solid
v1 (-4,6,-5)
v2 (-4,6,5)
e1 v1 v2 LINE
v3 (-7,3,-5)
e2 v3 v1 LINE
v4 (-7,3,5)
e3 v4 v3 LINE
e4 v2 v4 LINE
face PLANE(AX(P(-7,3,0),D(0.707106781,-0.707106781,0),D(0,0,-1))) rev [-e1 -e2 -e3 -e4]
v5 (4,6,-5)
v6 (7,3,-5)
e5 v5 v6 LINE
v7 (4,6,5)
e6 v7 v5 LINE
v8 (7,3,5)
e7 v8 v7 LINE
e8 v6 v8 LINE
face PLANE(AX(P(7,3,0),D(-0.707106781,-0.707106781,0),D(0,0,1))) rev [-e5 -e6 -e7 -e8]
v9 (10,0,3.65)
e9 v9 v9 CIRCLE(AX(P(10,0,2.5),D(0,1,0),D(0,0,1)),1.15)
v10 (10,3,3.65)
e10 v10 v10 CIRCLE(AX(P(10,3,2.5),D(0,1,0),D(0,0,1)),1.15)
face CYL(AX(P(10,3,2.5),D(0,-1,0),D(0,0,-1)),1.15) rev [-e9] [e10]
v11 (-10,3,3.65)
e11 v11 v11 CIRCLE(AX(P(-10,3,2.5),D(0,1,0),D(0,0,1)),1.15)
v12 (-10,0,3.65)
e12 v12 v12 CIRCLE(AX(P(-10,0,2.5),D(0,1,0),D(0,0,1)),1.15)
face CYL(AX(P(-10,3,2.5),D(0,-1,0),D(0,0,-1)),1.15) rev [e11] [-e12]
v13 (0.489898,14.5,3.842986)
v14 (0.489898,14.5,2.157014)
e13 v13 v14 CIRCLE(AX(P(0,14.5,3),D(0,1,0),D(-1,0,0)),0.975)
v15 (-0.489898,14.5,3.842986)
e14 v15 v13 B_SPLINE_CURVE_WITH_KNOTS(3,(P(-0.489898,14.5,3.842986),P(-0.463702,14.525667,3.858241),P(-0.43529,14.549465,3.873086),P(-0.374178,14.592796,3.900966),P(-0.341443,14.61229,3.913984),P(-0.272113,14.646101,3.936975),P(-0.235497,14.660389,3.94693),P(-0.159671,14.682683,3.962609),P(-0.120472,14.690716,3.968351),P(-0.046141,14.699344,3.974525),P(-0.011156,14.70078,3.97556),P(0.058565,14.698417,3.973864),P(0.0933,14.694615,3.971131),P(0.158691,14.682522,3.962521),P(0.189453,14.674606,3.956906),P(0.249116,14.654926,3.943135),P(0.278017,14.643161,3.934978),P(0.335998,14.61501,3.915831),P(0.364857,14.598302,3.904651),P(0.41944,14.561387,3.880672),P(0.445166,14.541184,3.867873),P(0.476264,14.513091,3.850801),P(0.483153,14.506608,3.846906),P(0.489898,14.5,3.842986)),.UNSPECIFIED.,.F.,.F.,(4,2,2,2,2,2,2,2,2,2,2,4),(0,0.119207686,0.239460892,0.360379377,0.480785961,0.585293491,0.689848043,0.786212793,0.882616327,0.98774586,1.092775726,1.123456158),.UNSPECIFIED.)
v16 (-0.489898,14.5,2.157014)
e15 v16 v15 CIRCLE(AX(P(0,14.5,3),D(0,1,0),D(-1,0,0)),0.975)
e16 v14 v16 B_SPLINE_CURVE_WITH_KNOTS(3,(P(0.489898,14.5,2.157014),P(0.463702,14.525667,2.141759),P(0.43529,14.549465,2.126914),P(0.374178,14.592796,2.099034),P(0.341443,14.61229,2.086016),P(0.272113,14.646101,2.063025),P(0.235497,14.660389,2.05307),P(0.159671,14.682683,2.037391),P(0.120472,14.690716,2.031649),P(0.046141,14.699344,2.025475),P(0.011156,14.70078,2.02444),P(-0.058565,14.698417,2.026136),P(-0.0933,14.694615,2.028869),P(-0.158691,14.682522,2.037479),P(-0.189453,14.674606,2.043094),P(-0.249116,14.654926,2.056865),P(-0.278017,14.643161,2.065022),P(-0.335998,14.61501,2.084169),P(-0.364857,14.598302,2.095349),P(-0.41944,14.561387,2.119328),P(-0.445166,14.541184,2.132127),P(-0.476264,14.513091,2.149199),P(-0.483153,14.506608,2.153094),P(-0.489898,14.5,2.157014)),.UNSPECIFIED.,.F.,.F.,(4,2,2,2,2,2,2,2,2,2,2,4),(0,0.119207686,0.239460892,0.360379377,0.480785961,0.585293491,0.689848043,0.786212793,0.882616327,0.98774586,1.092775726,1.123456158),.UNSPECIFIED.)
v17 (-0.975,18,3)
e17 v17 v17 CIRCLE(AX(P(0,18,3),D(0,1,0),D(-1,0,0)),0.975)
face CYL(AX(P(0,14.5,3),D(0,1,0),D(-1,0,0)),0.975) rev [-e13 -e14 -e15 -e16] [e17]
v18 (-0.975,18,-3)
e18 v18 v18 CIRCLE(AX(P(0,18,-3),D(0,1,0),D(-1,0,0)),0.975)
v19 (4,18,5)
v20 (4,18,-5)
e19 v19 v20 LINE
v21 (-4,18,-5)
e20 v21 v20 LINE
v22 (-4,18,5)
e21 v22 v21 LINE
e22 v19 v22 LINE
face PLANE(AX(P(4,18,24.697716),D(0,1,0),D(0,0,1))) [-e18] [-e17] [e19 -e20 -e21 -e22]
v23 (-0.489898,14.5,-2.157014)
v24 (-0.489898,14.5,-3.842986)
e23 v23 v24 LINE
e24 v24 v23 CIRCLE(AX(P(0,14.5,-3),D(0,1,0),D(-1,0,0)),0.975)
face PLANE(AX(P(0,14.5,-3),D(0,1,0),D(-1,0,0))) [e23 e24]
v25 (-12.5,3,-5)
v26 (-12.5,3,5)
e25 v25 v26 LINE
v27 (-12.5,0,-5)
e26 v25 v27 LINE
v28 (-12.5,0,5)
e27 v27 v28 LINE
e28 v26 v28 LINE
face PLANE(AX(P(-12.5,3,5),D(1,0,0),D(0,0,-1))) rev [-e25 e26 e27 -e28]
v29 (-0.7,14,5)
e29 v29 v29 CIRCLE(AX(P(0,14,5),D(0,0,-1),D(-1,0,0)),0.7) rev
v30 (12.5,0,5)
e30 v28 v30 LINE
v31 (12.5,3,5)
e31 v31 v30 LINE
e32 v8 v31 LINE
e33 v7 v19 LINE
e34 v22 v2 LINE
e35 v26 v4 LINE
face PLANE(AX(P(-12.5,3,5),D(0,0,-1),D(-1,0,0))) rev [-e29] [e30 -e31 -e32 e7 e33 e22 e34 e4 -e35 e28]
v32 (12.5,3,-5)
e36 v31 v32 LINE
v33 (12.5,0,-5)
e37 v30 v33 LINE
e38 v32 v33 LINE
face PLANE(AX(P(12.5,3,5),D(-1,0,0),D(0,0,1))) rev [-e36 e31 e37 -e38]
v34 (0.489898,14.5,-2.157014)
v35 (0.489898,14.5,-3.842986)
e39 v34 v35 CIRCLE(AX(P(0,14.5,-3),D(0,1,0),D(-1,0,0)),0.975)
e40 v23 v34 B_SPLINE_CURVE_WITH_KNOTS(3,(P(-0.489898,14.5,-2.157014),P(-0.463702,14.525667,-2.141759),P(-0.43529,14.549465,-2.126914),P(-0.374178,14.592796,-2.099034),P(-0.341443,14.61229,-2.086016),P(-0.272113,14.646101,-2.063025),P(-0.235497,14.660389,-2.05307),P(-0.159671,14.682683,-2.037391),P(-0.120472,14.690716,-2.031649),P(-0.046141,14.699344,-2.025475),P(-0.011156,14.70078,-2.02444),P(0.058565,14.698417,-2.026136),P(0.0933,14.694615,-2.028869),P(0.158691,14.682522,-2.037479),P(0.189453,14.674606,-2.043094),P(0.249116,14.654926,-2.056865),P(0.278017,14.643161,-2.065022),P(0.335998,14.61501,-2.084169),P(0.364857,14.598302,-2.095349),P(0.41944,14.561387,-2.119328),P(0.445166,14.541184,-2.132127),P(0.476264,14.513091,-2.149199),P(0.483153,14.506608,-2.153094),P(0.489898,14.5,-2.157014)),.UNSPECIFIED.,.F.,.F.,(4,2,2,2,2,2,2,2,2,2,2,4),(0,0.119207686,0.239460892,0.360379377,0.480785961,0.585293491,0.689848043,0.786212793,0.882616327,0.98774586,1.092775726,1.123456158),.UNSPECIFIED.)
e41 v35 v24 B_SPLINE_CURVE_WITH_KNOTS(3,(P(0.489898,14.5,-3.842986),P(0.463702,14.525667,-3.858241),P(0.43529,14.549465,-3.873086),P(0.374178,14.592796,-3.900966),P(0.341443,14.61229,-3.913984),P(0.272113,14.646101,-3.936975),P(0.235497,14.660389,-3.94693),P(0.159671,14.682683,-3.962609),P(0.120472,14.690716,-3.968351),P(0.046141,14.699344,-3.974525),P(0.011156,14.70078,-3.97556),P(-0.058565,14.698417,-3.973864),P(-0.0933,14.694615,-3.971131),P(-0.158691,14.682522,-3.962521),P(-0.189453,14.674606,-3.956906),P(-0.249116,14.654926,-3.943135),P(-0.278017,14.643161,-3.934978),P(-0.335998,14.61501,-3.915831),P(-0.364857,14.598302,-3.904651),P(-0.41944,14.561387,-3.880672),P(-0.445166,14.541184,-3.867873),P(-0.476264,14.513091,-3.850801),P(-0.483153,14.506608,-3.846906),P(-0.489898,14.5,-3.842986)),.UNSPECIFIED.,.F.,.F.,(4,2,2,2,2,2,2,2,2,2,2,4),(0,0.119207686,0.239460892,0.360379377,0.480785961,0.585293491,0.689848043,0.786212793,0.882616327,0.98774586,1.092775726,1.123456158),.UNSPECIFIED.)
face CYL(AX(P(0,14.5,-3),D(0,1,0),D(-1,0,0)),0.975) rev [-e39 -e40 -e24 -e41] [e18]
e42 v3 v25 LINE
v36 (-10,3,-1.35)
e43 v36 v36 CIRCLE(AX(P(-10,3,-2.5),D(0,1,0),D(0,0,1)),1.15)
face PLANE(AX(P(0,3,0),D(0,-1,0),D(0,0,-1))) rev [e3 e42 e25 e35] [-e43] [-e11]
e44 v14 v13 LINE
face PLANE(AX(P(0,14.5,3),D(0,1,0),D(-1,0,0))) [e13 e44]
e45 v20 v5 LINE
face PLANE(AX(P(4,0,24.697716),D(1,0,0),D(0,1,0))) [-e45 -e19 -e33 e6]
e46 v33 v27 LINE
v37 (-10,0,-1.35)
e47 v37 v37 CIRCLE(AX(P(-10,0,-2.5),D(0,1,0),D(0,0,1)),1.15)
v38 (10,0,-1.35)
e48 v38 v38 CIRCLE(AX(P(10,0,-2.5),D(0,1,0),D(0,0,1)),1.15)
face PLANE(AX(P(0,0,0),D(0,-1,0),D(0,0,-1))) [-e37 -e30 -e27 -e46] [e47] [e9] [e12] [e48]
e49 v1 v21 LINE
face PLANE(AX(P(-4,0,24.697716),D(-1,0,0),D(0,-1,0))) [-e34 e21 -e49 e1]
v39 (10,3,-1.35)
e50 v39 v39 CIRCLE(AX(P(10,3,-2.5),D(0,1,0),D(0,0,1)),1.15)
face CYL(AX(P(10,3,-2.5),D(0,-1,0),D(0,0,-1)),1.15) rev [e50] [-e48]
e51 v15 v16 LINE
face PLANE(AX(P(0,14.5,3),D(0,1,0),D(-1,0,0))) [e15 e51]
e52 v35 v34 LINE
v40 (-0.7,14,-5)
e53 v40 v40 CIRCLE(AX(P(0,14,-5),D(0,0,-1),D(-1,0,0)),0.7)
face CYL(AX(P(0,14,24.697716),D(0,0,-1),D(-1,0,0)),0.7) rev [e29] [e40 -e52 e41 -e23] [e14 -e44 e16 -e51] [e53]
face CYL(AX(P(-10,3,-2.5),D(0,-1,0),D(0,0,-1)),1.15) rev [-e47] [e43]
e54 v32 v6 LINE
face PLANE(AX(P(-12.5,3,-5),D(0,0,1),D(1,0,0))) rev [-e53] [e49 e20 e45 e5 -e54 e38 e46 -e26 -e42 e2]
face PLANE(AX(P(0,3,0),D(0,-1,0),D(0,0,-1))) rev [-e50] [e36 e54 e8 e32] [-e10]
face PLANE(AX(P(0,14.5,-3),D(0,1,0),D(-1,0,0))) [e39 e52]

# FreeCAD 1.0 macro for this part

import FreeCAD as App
import Part
import Sketcher
from FreeCAD import Vector


def edges_at(feature, points):
    """Names of the edges that pass closest to the given points."""
    edges = feature.Shape.Edges
    near = lambda p: min(range(len(edges)), key=lambda i: edges[i].distToShape(Part.Vertex(*p))[0])
    return sorted({f"Edge{near(p) + 1}" for p in points})

doc = App.newDocument("Part")
body = doc.addObject("PartDesign::Body", "Body")

sketch1 = doc.addObject("Sketcher::SketchObject", "Sketch")
body.addObject(sketch1)
sketch1.AttachmentSupport = (doc.XZ_Plane, [""])
sketch1.MapMode = "FlatFace"
sketch1.addGeometry([
    Part.LineSegment(Vector(-12.5, -5, 0), Vector(-12.5, 5, 0)),
    Part.LineSegment(Vector(-12.5, 5, 0), Vector(12.5, 5, 0)),
    Part.LineSegment(Vector(12.5, 5, 0), Vector(12.5, -5, 0)),
    Part.LineSegment(Vector(12.5, -5, 0), Vector(-12.5, -5, 0)),
    Part.Circle(Vector(-10, 2.5, 0), Vector(0, 0, 1), 1.1),
    Part.Circle(Vector(10, 2.5, 0), Vector(0, 0, 1), 1.1),
    Part.Circle(Vector(-10, -2.5, 0), Vector(0, 0, 1), 1.1),
    Part.Circle(Vector(10, -2.5, 0), Vector(0, 0, 1), 1.1),
], False)
sketch1.addConstraint([
    Sketcher.Constraint("Coincident", 0, 2, 1, 1),
    Sketcher.Constraint("Coincident", 1, 2, 2, 1),
    Sketcher.Constraint("Coincident", 2, 2, 3, 1),
    Sketcher.Constraint("Coincident", 3, 2, 0, 1),
    Sketcher.Constraint("Vertical", 0),
    Sketcher.Constraint("Horizontal", 1),
    Sketcher.Constraint("Vertical", 2),
    Sketcher.Constraint("Horizontal", 3),
    Sketcher.Constraint("Equal", 4, 5),
    Sketcher.Constraint("Equal", 5, 6),
    Sketcher.Constraint("Equal", 6, 7),
    Sketcher.Constraint("Symmetric", 5, 3, 6, 3, -1, 1),
    Sketcher.Constraint("Symmetric", 4, 3, 7, 3, -1, 1),
    Sketcher.Constraint("Symmetric", 0, 2, 2, 2, -1, 1),
    Sketcher.Constraint("Symmetric", 4, 3, 5, 3, -2),
    Sketcher.Constraint("Diameter", 4, 2.3),
    Sketcher.Constraint("DistanceX", 1, 1, 1, 2, 25.0),
    Sketcher.Constraint("DistanceY", 0, 1, 0, 2, 10.0),
    Sketcher.Constraint("DistanceX", 4, 3, -1, 1, 10.0),
    Sketcher.Constraint("DistanceY", 6, 3, 4, 3, 5.0),
])
pad1 = doc.addObject("PartDesign::Pad", "Pad")
body.addObject(pad1)
pad1.Profile = sketch1
pad1.Length = 3
pad1.Reversed = True

sketch2 = doc.addObject("Sketcher::SketchObject", "Sketch001")
body.addObject(sketch2)
sketch2.AttachmentSupport = (doc.XY_Plane, [""])
sketch2.MapMode = "FlatFace"
sketch2.AttachmentOffset = App.Placement(Vector(0, 0, -5), App.Rotation())
sketch2.addGeometry([
    Part.LineSegment(Vector(4, 18, 0), Vector(4, 0, 0)),
    Part.LineSegment(Vector(4, 0, 0), Vector(-4, 0, 0)),
    Part.LineSegment(Vector(-4, 0, 0), Vector(-4, 18, 0)),
    Part.LineSegment(Vector(-4, 18, 0), Vector(4, 18, 0)),
    Part.Circle(Vector(0, 14, 0), Vector(0, 0, 1), 0.7),
], False)
sketch2.addConstraint([
    Sketcher.Constraint("Coincident", 0, 2, 1, 1),
    Sketcher.Constraint("Coincident", 1, 2, 2, 1),
    Sketcher.Constraint("Coincident", 2, 2, 3, 1),
    Sketcher.Constraint("Coincident", 3, 2, 0, 1),
    Sketcher.Constraint("Vertical", 0),
    Sketcher.Constraint("Horizontal", 1),
    Sketcher.Constraint("Vertical", 2),
    Sketcher.Constraint("Horizontal", 3),
    Sketcher.Constraint("Symmetric", 0, 2, 1, 2, -1, 1),
    Sketcher.Constraint("PointOnObject", 4, 3, -2),
    Sketcher.Constraint("Diameter", 4, 1.4),
    Sketcher.Constraint("DistanceX", 1, 2, 1, 1, 8.0),
    Sketcher.Constraint("DistanceY", 0, 2, 0, 1, 18.0),
    Sketcher.Constraint("DistanceY", -1, 1, 4, 3, 14.0),
])
pad2 = doc.addObject("PartDesign::Pad", "Pad001")
body.addObject(pad2)
pad2.Profile = sketch2
pad2.Length = 10

sketch3 = doc.addObject("Sketcher::SketchObject", "Sketch002")
body.addObject(sketch3)
sketch3.AttachmentSupport = (doc.XZ_Plane, [""])
sketch3.MapMode = "FlatFace"
sketch3.AttachmentOffset = App.Placement(Vector(0, 0, -18), App.Rotation())
sketch3.addGeometry([
    Part.Circle(Vector(0, -3, 0), Vector(0, 0, 1), 1),
    Part.Circle(Vector(0, 3, 0), Vector(0, 0, 1), 1),
], False)
sketch3.addConstraint([
    Sketcher.Constraint("Equal", 0, 1),
    Sketcher.Constraint("Symmetric", 0, 3, 1, 3, -1, 1),
    Sketcher.Constraint("PointOnObject", 0, 3, -2),
    Sketcher.Constraint("Diameter", 0, 1.95),
    Sketcher.Constraint("DistanceY", 0, 3, -1, 1, 3.0),
])
pocket1 = doc.addObject("PartDesign::Pocket", "Pocket")
body.addObject(pocket1)
pocket1.Profile = sketch3
pocket1.Length = 3.5
pocket1.Reversed = True
doc.recompute()

chamfer = doc.addObject("PartDesign::Chamfer", "Chamfer")
body.addObject(chamfer)
chamfer.Base = (pocket1, edges_at(pocket1, [(-4, 3, 0), (4, 3, 0)]))
chamfer.Size = 3

doc.recompute()
